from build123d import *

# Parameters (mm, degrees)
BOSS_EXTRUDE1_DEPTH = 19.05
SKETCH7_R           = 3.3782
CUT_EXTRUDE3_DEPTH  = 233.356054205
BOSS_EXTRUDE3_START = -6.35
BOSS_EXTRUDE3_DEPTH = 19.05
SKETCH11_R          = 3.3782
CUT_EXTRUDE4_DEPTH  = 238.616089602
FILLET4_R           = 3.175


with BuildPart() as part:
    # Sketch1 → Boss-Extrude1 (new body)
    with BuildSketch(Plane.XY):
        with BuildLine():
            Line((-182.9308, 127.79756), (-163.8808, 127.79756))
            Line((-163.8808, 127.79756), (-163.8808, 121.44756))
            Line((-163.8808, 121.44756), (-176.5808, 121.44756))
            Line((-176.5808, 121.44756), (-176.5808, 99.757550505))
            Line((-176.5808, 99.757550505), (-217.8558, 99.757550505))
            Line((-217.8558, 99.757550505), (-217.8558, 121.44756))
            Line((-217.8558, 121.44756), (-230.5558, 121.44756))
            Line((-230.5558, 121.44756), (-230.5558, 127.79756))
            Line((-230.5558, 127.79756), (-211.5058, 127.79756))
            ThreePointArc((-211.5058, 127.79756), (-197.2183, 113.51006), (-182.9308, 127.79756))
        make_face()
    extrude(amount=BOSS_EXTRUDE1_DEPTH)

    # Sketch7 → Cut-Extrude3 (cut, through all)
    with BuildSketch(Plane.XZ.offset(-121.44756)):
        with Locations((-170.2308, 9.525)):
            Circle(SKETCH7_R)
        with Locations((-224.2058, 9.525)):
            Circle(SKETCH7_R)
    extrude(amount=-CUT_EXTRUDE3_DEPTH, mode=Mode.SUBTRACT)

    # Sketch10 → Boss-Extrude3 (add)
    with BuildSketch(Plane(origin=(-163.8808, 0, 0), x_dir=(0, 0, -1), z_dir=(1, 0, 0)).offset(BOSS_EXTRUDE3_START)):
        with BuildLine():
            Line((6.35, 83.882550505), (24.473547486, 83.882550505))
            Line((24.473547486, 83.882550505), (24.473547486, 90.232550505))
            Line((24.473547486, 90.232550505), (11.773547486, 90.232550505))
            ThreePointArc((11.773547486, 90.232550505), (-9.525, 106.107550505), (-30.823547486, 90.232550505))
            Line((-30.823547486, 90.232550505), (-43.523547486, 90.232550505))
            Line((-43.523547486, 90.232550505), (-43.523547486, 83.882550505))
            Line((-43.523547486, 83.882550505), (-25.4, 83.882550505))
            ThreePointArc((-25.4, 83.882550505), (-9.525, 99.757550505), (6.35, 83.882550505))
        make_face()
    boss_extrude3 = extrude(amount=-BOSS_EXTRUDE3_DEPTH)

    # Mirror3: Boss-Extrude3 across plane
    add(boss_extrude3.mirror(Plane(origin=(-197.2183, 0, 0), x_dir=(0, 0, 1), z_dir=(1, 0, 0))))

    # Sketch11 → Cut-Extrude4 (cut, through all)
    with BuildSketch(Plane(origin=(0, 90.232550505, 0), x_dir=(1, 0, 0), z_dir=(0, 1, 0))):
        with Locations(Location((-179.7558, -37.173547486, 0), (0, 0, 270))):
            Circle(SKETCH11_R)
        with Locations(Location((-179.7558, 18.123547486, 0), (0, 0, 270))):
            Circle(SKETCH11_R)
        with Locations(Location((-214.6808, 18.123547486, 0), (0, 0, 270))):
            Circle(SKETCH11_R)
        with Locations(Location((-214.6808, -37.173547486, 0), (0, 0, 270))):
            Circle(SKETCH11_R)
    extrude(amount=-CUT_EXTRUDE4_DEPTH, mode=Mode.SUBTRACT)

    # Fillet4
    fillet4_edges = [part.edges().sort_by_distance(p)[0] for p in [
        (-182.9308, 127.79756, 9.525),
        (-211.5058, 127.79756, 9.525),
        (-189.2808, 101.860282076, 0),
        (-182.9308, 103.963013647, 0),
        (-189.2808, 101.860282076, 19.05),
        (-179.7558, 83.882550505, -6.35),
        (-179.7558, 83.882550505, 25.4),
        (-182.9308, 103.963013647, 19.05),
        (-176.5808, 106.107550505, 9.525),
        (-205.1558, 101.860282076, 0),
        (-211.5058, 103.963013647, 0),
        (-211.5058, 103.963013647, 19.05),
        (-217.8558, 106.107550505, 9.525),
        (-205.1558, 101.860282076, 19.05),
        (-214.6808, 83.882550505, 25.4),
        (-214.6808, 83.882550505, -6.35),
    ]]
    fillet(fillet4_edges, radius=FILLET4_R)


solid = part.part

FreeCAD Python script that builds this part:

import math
import FreeCAD as App
import Part
import Sketcher

V = App.Vector
Q = App.Units.Quantity


def edges_at(feature, points):
    """Names of the edges that pass closest to the given points."""
    edges = feature.Shape.Edges
    near = lambda p: min(range(len(edges)), key=lambda i: edges[i].distToShape(Part.Vertex(*p))[0])
    return sorted({f"Edge{near(p) + 1}" for p in points})

doc = App.newDocument("Part")
params = doc.addObject("Spreadsheet::Sheet", "Params")
for row, (alias, value) in enumerate([
    ("sketch1_width", "0.5 in"),
    ("sketch1_radius", "0.5625 in"),
    ("sketch1_width2", "0.75 in"),
    ("sketch1_height", "0.25 in"),
    ("pad1_length", "0.75 in"),
    ("sketch2_diameter", "0.266 in"),
    ("sketch3_height", "0.5 in"),
    ("sketch3_radius", "0.875 in"),
    ("sketch3_radius2", "0.625 in"),
    ("sketch3_width", "0.25 in"),
    ("pad2_length", "0.75 in"),
    ("sketch4_diameter", "0.266 in"),
    ("fillet_radius", "0.125 in"),
], start=1):
    params.set(f"A{row}", alias)
    params.set(f"B{row}", "=" + value)
    params.setAlias(f"B{row}", alias)

body = doc.addObject("PartDesign::Body", "Body")

sketch1 = body.newObject("Sketcher::SketchObject", "Sketch")
sketch1.AttachmentSupport = (doc.getObject("XY_Plane"), [""])
sketch1.MapMode = "FlatFace"
sketch1.addGeometry(Part.LineSegment(V(-164, 128, 0), V(-183, 128, 0)), False)
sketch1.addGeometry(Part.ArcOfCircle(Part.Circle(V(-197, 128, 0), V(0, 0, 1), 14), math.radians(180), math.radians(360)), False)
sketch1.addGeometry(Part.LineSegment(V(-212, 128, 0), V(-231, 128, 0)), False)
sketch1.addGeometry(Part.LineSegment(V(-231, 128, 0), V(-231, 121, 0)), False)
sketch1.addGeometry(Part.LineSegment(V(-231, 121, 0), V(-218, 121, 0)), False)
sketch1.addGeometry(Part.LineSegment(V(-218, 121, 0), V(-218, 100, 0)), False)
sketch1.addGeometry(Part.LineSegment(V(-218, 100, 0), V(-177, 100, 0)), False)
sketch1.addGeometry(Part.LineSegment(V(-177, 100, 0), V(-177, 121, 0)), False)
sketch1.addGeometry(Part.LineSegment(V(-177, 121, 0), V(-164, 121, 0)), False)
sketch1.addGeometry(Part.LineSegment(V(-164, 121, 0), V(-164, 128, 0)), False)
sketch1.addConstraint(Sketcher.Constraint("Coincident", 0, 2, 1, 2))
sketch1.addConstraint(Sketcher.Constraint("Coincident", 1, 1, 2, 1))
sketch1.addConstraint(Sketcher.Constraint("Coincident", 2, 2, 3, 1))
sketch1.addConstraint(Sketcher.Constraint("Coincident", 3, 2, 4, 1))
sketch1.addConstraint(Sketcher.Constraint("Coincident", 4, 2, 5, 1))
sketch1.addConstraint(Sketcher.Constraint("Coincident", 5, 2, 6, 1))
sketch1.addConstraint(Sketcher.Constraint("Coincident", 6, 2, 7, 1))
sketch1.addConstraint(Sketcher.Constraint("Coincident", 7, 2, 8, 1))
sketch1.addConstraint(Sketcher.Constraint("Coincident", 8, 2, 9, 1))
sketch1.addConstraint(Sketcher.Constraint("Coincident", 9, 2, 0, 1))
sketch1.addConstraint(Sketcher.Constraint("Horizontal", 0))
sketch1.addConstraint(Sketcher.Constraint("Horizontal", 2))
sketch1.addConstraint(Sketcher.Constraint("Vertical", 3))
sketch1.addConstraint(Sketcher.Constraint("Horizontal", 4))
sketch1.addConstraint(Sketcher.Constraint("Vertical", 5))
sketch1.addConstraint(Sketcher.Constraint("Horizontal", 6))
sketch1.addConstraint(Sketcher.Constraint("Vertical", 7))
sketch1.addConstraint(Sketcher.Constraint("Horizontal", 8))
sketch1.addConstraint(Sketcher.Constraint("Vertical", 9))
sketch1.addConstraint(Sketcher.Constraint("Horizontal", 1, 3, 0, 2))
sketch1.addConstraint(Sketcher.Constraint("Horizontal", 0, 2, 1, 1))
sketch1.addConstraint(Sketcher.Constraint("Horizontal", 4, 2, 7, 2))
sketch1.addConstraint(Sketcher.Constraint("Equal", 0, 2))
sketch1.addConstraint(Sketcher.Constraint("Equal", 4, 8))
sketch1.addConstraint(Sketcher.Constraint("DistanceX", 4, 1, 4, 2, Q("0.5 in")))
sketch1.addConstraint(Sketcher.Constraint("Radius", 1, Q("0.5625 in")))
sketch1.addConstraint(Sketcher.Constraint("DistanceX", 0, 2, 0, 1, Q("0.75 in")))
sketch1.addConstraint(Sketcher.Constraint("DistanceY", 3, 2, 3, 1, Q("0.25 in")))
sketch1.addConstraint(Sketcher.Constraint("DistanceX", 0, 2, -1, 1, Q("7.202 in")))
sketch1.addConstraint(Sketcher.Constraint("DistanceY", -1, 1, 1, 3, Q("5.0314 in")))
sketch1.addConstraint(Sketcher.Constraint("DistanceY", 5, 2, 5, 1, Q("21.690009 mm")))
sketch1.setExpression("Constraints[24]", "Params.sketch1_width")
sketch1.setExpression("Constraints[25]", "Params.sketch1_radius")
sketch1.setExpression("Constraints[26]", "Params.sketch1_width2")
sketch1.setExpression("Constraints[27]", "Params.sketch1_height")
pad1 = body.newObject("PartDesign::Pad", "Pad")
pad1.Profile = sketch1
pad1.setExpression("Length", "Params.pad1_length")

sketch2 = body.newObject("Sketcher::SketchObject", "Sketch001")
sketch2.AttachmentSupport = (doc.getObject("XZ_Plane"), [""])
sketch2.MapMode = "FlatFace"
sketch2.AttachmentOffset = App.Placement(V(0, 0, -4.7814 * 25.4), App.Rotation())
sketch2.addGeometry(Part.Circle(V(-170.2, 9.5, 0), V(0, 0, 1), 3.4), False)
sketch2.addGeometry(Part.Circle(V(-224.2, 9.5, 0), V(0, 0, 1), 3.4), False)
sketch2.addConstraint(Sketcher.Constraint("Equal", 0, 1))
sketch2.addConstraint(Sketcher.Constraint("Horizontal", 0, 3, 1, 3))
sketch2.addConstraint(Sketcher.Constraint("Diameter", 0, Q("0.266 in")))
sketch2.addConstraint(Sketcher.Constraint("DistanceX", 0, 3, -1, 1, Q("6.702 in")))
sketch2.addConstraint(Sketcher.Constraint("DistanceY", -1, 1, 0, 3, Q("0.375 in")))
sketch2.addConstraint(Sketcher.Constraint("DistanceX", 1, 3, -1, 1, Q("8.827 in")))
sketch2.setExpression("Constraints[2]", "Params.sketch2_diameter")
pocket1 = body.newObject("PartDesign::Pocket", "Pocket")
pocket1.Profile = sketch2
pocket1.Type = "ThroughAll"

sketch3 = body.newObject("Sketcher::SketchObject", "Sketch002")
sketch3.AttachmentSupport = (doc.getObject("YZ_Plane"), [""])
sketch3.MapMode = "FlatFace"
sketch3.AttachmentOffset = App.Placement(V(0, 0, -6.702 * 25.4), App.Rotation())
sketch3.addGeometry(Part.LineSegment(V(84, -6, 0), V(84, -24, 0)), False)
sketch3.addGeometry(Part.LineSegment(V(84, -24, 0), V(90, -24, 0)), False)
sketch3.addGeometry(Part.LineSegment(V(90, -24, 0), V(90, -12, 0)), False)
sketch3.addGeometry(Part.ArcOfCircle(Part.Circle(V(84, 10, 0), V(0, 0, 1), 22), math.radians(-73), math.radians(73)), False)
sketch3.addGeometry(Part.LineSegment(V(90, 31, 0), V(90, 44, 0)), False)
sketch3.addGeometry(Part.LineSegment(V(90, 44, 0), V(84, 44, 0)), False)
sketch3.addGeometry(Part.LineSegment(V(84, 44, 0), V(84, 25, 0)), False)
sketch3.addGeometry(Part.ArcOfCircle(Part.Circle(V(84, 10, 0), V(0, 0, 1), 16), math.radians(-90), math.radians(90)), False)
sketch3.addConstraint(Sketcher.Constraint("Coincident", 0, 2, 1, 1))
sketch3.addConstraint(Sketcher.Constraint("Coincident", 1, 2, 2, 1))
sketch3.addConstraint(Sketcher.Constraint("Coincident", 2, 2, 3, 1))
sketch3.addConstraint(Sketcher.Constraint("Coincident", 3, 2, 4, 1))
sketch3.addConstraint(Sketcher.Constraint("Coincident", 4, 2, 5, 1))
sketch3.addConstraint(Sketcher.Constraint("Coincident", 5, 2, 6, 1))
sketch3.addConstraint(Sketcher.Constraint("Coincident", 6, 2, 7, 2))
sketch3.addConstraint(Sketcher.Constraint("Coincident", 7, 1, 0, 1))
sketch3.addConstraint(Sketcher.Constraint("Vertical", 0))
sketch3.addConstraint(Sketcher.Constraint("Horizontal", 1))
sketch3.addConstraint(Sketcher.Constraint("Vertical", 2))
sketch3.addConstraint(Sketcher.Constraint("Vertical", 4))
sketch3.addConstraint(Sketcher.Constraint("Horizontal", 5))
sketch3.addConstraint(Sketcher.Constraint("Vertical", 6))
sketch3.addConstraint(Sketcher.Constraint("Coincident", 7, 3, 3, 3))
sketch3.addConstraint(Sketcher.Constraint("Vertical", 7, 3, 0, 2))
sketch3.addConstraint(Sketcher.Constraint("Vertical", 2, 2, 3, 2))
sketch3.addConstraint(Sketcher.Constraint("Vertical", 0, 2, 5, 2))
sketch3.addConstraint(Sketcher.Constraint("Equal", 2, 4))
sketch3.addConstraint(Sketcher.Constraint("DistanceY", 2, 1, 2, 2, Q("0.5 in")))
sketch3.addConstraint(Sketcher.Constraint("DistanceY", -1, 1, 6, 2, Q("1 in")))
sketch3.addConstraint(Sketcher.Constraint("Radius", 3, Q("0.875 in")))
sketch3.addConstraint(Sketcher.Constraint("Radius", 7, Q("0.625 in")))
sketch3.addConstraint(Sketcher.Constraint("DistanceX", 1, 1, 1, 2, Q("0.25 in")))
sketch3.addConstraint(Sketcher.Constraint("DistanceX", -1, 1, 3, 3, Q("83.882551 mm")))
sketch3.setExpression("Constraints[19]", "Params.sketch3_height")
sketch3.setExpression("Constraints[21]", "Params.sketch3_radius")
sketch3.setExpression("Constraints[22]", "Params.sketch3_radius2")
sketch3.setExpression("Constraints[23]", "Params.sketch3_width")
pad2 = body.newObject("PartDesign::Pad", "Pad001")
pad2.Profile = sketch3
pad2.setExpression("Length", "Params.pad2_length")
pad2.Reversed = True
doc.recompute()

datumplane = body.newObject("PartDesign::Plane", "DatumPlane")
datumplane.AttachmentSupport = (doc.getObject("YZ_Plane"), [""])
datumplane.MapMode = "FlatFace"
datumplane.AttachmentOffset = App.Placement(V(0, 0, -7.7645 * 25.4), App.Rotation())
mirrored = body.newObject("PartDesign::Mirrored", "Mirrored")
mirrored.Originals = [pad2]
mirrored.MirrorPlane = (datumplane, [""])
body.Tip = mirrored

sketch4 = body.newObject("Sketcher::SketchObject", "Sketch003")
sketch4.AttachmentSupport = (doc.getObject("XZ_Plane"), [""])
sketch4.MapMode = "FlatFace"
sketch4.AttachmentOffset = App.Placement(V(0, 0, -90.232551), App.Rotation())
sketch4.addGeometry(Part.Circle(V(-179.8, 37.2, 0), V(0, 0, 1), 3.4), False)
sketch4.addGeometry(Part.Circle(V(-179.8, -18.1, 0), V(0, 0, 1), 3.4), False)
sketch4.addGeometry(Part.Circle(V(-214.7, -18.1, 0), V(0, 0, 1), 3.4), False)
sketch4.addGeometry(Part.Circle(V(-214.7, 37.2, 0), V(0, 0, 1), 3.4), False)
sketch4.addConstraint(Sketcher.Constraint("Equal", 0, 1))
sketch4.addConstraint(Sketcher.Constraint("Equal", 1, 2))
sketch4.addConstraint(Sketcher.Constraint("Equal", 2, 3))
sketch4.addConstraint(Sketcher.Constraint("Horizontal", 1, 3, 2, 3))
sketch4.addConstraint(Sketcher.Constraint("Horizontal", 0, 3, 3, 3))
sketch4.addConstraint(Sketcher.Constraint("Vertical", 0, 3, 1, 3))
sketch4.addConstraint(Sketcher.Constraint("Vertical", 2, 3, 3, 3))
sketch4.addConstraint(Sketcher.Constraint("Diameter", 0, Q("0.266 in")))
sketch4.addConstraint(Sketcher.Constraint("DistanceX", 0, 3, -1, 1, Q("7.077 in")))
sketch4.addConstraint(Sketcher.Constraint("DistanceX", 2, 3, -1, 1, Q("8.452 in")))
sketch4.addConstraint(Sketcher.Constraint("DistanceY", -1, 1, 0, 3, Q("37.173547 mm")))
sketch4.addConstraint(Sketcher.Constraint("DistanceY", 1, 3, -1, 1, Q("18.123547 mm")))
sketch4.setExpression("Constraints[7]", "Params.sketch4_diameter")
pocket2 = body.newObject("PartDesign::Pocket", "Pocket001")
pocket2.Profile = sketch4
pocket2.Type = "ThroughAll"
pocket2.Reversed = True
doc.recompute()

fillet = body.newObject("PartDesign::Fillet", "Fillet")
fillet.Base = (pocket2, edges_at(pocket2, [
    (-182.931, 127.798, 9.525),
    (-211.506, 127.798, 9.525),
    (-189.281, 101.86, 0),
    (-182.931, 103.963, 0),
    (-189.281, 101.86, 19.05),
    (-179.756, 83.883, -6.35),
    (-179.756, 83.883, 25.4),
    (-182.931, 103.963, 19.05),
    (-176.581, 106.108, 9.525),
    (-205.156, 101.86, 0),
    (-211.506, 103.963, 0),
    (-211.506, 103.963, 19.05),
    (-217.856, 106.108, 9.525),
    (-205.156, 101.86, 19.05),
    (-214.681, 83.883, 25.4),
    (-214.681, 83.883, -6.35),
]))
fillet.setExpression("Radius", "Params.fillet_radius")

doc.recompute()
